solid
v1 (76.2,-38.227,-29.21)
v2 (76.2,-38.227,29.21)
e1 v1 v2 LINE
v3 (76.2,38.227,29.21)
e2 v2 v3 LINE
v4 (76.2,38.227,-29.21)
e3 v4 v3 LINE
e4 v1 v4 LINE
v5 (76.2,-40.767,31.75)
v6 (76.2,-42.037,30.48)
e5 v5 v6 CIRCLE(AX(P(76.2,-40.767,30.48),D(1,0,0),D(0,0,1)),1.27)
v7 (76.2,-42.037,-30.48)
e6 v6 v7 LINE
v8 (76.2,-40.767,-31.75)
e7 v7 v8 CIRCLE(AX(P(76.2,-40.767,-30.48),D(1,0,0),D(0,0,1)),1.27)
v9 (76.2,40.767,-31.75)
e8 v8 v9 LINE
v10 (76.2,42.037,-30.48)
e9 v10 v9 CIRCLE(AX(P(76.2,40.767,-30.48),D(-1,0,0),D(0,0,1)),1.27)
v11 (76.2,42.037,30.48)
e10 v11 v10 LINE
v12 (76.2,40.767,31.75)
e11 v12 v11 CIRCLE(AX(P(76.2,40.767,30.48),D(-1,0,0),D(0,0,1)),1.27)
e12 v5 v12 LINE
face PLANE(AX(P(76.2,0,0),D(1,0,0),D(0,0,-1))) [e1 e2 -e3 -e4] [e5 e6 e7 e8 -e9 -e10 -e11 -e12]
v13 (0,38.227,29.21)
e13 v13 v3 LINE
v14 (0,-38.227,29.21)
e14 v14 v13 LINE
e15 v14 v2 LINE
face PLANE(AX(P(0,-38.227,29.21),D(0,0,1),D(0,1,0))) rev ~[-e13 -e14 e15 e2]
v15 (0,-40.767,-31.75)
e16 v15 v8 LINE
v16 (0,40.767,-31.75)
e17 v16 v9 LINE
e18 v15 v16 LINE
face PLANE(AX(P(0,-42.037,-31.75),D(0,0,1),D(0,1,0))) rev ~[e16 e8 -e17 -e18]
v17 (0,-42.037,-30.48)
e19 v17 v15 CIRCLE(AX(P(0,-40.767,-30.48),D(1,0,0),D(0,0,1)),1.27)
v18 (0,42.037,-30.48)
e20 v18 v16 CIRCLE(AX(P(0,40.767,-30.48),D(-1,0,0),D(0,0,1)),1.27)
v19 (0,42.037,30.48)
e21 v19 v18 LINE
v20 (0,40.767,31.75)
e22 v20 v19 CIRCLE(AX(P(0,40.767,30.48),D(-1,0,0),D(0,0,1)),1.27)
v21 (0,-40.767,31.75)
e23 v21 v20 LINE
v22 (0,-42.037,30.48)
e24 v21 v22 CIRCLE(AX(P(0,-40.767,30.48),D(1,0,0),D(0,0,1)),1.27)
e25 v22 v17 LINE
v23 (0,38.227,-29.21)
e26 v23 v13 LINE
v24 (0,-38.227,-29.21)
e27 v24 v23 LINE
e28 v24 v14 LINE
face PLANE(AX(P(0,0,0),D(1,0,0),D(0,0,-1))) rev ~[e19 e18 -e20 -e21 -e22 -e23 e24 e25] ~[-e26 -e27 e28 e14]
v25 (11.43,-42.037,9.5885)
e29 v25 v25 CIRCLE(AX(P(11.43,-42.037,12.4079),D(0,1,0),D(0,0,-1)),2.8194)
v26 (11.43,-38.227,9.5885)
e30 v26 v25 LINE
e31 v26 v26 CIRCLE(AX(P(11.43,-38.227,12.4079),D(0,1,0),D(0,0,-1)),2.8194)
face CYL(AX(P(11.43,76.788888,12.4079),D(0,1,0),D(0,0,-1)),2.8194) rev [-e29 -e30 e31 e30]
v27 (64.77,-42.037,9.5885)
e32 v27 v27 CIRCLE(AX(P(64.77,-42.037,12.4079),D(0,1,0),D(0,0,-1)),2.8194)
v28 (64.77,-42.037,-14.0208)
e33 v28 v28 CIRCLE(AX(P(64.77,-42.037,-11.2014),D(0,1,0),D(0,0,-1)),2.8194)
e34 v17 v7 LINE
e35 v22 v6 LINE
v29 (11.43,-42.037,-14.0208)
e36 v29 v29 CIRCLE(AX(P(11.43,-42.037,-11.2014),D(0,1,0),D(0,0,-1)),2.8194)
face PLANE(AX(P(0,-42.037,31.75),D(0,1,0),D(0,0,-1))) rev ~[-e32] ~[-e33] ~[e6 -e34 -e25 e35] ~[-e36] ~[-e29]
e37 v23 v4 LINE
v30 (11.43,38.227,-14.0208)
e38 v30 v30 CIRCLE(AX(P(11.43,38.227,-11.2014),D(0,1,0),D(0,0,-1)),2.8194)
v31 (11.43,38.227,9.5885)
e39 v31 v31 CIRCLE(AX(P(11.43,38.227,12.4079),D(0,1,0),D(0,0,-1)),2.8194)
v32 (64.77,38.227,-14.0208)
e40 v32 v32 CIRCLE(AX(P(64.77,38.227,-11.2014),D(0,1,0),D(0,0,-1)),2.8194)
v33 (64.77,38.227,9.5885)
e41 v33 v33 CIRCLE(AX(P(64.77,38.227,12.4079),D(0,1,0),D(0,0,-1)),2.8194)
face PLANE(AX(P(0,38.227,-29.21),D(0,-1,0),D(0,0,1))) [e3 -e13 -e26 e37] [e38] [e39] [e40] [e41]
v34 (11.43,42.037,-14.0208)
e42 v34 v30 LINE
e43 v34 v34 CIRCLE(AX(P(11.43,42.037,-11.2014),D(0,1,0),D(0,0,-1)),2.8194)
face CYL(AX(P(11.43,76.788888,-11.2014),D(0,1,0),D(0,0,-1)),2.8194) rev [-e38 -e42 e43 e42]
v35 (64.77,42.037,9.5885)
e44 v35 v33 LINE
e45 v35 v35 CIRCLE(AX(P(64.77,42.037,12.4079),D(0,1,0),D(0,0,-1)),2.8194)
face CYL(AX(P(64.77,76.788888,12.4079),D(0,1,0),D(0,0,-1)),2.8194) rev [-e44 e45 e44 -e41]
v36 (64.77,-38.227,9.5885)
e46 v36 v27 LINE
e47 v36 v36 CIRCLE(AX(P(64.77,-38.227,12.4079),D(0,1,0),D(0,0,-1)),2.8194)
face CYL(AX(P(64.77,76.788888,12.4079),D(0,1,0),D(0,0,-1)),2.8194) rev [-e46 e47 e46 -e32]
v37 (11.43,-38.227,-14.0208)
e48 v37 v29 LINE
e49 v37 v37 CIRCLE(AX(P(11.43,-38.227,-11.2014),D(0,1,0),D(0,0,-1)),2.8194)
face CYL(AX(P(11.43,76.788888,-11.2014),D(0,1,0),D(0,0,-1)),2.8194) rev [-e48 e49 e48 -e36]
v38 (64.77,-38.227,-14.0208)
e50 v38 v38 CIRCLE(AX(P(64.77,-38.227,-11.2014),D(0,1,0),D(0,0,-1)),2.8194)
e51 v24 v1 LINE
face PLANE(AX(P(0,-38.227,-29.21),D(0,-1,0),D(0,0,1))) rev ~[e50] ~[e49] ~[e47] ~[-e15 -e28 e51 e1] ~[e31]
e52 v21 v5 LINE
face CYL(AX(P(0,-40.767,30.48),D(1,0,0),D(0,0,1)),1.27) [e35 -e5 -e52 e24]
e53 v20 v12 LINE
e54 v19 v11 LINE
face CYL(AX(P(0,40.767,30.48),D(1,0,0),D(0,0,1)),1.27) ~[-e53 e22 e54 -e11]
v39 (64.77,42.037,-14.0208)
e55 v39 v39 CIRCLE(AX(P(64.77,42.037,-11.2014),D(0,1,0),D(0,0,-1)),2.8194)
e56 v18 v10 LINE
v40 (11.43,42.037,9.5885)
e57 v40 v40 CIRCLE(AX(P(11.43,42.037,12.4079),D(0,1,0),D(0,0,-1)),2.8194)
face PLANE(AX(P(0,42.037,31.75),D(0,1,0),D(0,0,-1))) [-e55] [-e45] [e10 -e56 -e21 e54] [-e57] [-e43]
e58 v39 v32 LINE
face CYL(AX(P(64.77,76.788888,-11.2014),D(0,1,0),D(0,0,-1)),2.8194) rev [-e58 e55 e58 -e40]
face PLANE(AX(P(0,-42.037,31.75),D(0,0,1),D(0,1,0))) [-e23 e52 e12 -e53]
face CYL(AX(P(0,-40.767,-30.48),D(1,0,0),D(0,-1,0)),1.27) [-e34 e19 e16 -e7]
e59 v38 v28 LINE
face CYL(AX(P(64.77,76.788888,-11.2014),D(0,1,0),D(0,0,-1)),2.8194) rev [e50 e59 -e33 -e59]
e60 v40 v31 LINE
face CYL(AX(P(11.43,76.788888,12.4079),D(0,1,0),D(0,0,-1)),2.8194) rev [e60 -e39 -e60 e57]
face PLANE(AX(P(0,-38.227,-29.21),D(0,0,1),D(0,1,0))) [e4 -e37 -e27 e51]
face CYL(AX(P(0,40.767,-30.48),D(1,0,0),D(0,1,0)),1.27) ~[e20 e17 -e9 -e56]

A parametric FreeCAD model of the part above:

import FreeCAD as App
import Part
import Sketcher

V = App.Vector
Q = App.Units.Quantity


def edges_at(feature, points):
    """Names of the edges that pass closest to the given points."""
    edges = feature.Shape.Edges
    near = lambda p: min(range(len(edges)), key=lambda i: edges[i].distToShape(Part.Vertex(*p))[0])
    return sorted({f"Edge{near(p) + 1}" for p in points})


def add_polygon(sketch, points):
    """Adds a closed chain of lines whose ends are joined by coincident constraints."""
    first, n = sketch.GeometryCount, len(points)
    for a, b in zip(points, points[1:] + points[:1]):
        sketch.addGeometry(Part.LineSegment(App.Vector(*a, 0), App.Vector(*b, 0)), False)
    for i in range(n):
        sketch.addConstraint(Sketcher.Constraint("Coincident", first + i, 2, first + (i + 1) % n, 1))

doc = App.newDocument("Part")
params = doc.addObject("Spreadsheet::Sheet", "Params")
for row, (alias, value) in enumerate([
    ("sketch1_height", "2.5 in"),
    ("sketch1_width", "3.31 in"),
    ("pad1_length", "3 in"),
    ("sketch2_height", "2.3 in"),
    ("sketch2_width", "3.01 in"),
    ("fillet_radius", "0.05 in"),
    ("sketch3_diameter", "0.222 in"),
], start=1):
    params.set(f"A{row}", alias)
    params.set(f"B{row}", "=" + value)
    params.setAlias(f"B{row}", alias)

body = doc.addObject("PartDesign::Body", "Body")

# Sketch on YZ plane
sketch1 = body.newObject("Sketcher::SketchObject", "Sketch")
sketch1.AttachmentSupport = (doc.getObject("YZ_Plane"), [""])
sketch1.MapMode = "FlatFace"
add_polygon(sketch1, [(42, 32), (-42, 32), (-42, -32), (42, -32)])  # lines 0-3
sketch1.addConstraint([
    Sketcher.Constraint("Horizontal", 0),
    Sketcher.Constraint("Vertical", 1),
    Sketcher.Constraint("Horizontal", 2),
    Sketcher.Constraint("Vertical", 3),
    Sketcher.Constraint("Symmetric", 0, 2, 2, 2, -1, 1),
    Sketcher.Constraint("DistanceY", 1, 2, 1, 1, Q("2.5 in")),
    Sketcher.Constraint("DistanceX", 0, 2, 0, 1, Q("3.31 in")),
])
sketch1.setExpression("Constraints[9]", "Params.sketch1_height")
sketch1.setExpression("Constraints[10]", "Params.sketch1_width")
pad1 = body.newObject("PartDesign::Pad", "Pad")
pad1.Profile = sketch1
pad1.setExpression("Length", "Params.pad1_length")

# Sketch on YZ plane
sketch2 = body.newObject("Sketcher::SketchObject", "Sketch001")
sketch2.AttachmentSupport = (doc.getObject("YZ_Plane"), [""])
sketch2.MapMode = "FlatFace"
add_polygon(sketch2, [(38, -29), (-38, -29), (-38, 29), (38, 29)])  # lines 0-3
sketch2.addConstraint([
    Sketcher.Constraint("Horizontal", 0),
    Sketcher.Constraint("Vertical", 1),
    Sketcher.Constraint("Horizontal", 2),
    Sketcher.Constraint("Vertical", 3),
    Sketcher.Constraint("Symmetric", 0, 2, 2, 2, -1, 1),
    Sketcher.Constraint("DistanceY", 1, 1, 1, 2, Q("2.3 in")),
    Sketcher.Constraint("DistanceX", 0, 2, 0, 1, Q("3.01 in")),
])
sketch2.setExpression("Constraints[9]", "Params.sketch2_height")
sketch2.setExpression("Constraints[10]", "Params.sketch2_width")
pocket1 = body.newObject("PartDesign::Pocket", "Pocket")
pocket1.Profile = sketch2
pocket1.Type = "UpToFirst"
pocket1.Reversed = True
doc.recompute()

fillet = body.newObject("PartDesign::Fillet", "Fillet")
fillet.Base = (pocket1, edges_at(pocket1, [
    (38.1, -42.037, -31.75),
    (38.1, -42.037, 31.75),
    (38.1, 42.037, 31.75),
    (38.1, 42.037, -31.75),
]))
fillet.setExpression("Radius", "Params.fillet_radius")

# Sketch on XZ plane
sketch3 = body.newObject("Sketcher::SketchObject", "Sketch002")
sketch3.AttachmentSupport = (doc.getObject("XZ_Plane"), [""])
sketch3.MapMode = "FlatFace"
sketch3.AttachmentOffset = App.Placement(V(0, 0, 1.655 * 25.4), App.Rotation())
sketch3.addGeometry([
    Part.Circle(V(11.4, 12.4, 0), V(0, 0, 1), 2.8),
    Part.Circle(V(64.8, 12.4, 0), V(0, 0, 1), 2.8),
    Part.Circle(V(11.4, -11.2, 0), V(0, 0, 1), 2.8),
    Part.Circle(V(64.8, -11.2, 0), V(0, 0, 1), 2.8),
], False)
sketch3.addConstraint([
    Sketcher.Constraint("Equal", 0, 1),
    Sketcher.Constraint("Equal", 1, 2),
    Sketcher.Constraint("Equal", 2, 3),
    Sketcher.Constraint("Horizontal", 0, 3, 1, 3),
    Sketcher.Constraint("Horizontal", 2, 3, 3, 3),
    Sketcher.Constraint("Vertical", 0, 3, 2, 3),
    Sketcher.Constraint("Vertical", 1, 3, 3, 3),
    Sketcher.Constraint("Diameter", 0, Q("0.222 in")),
    Sketcher.Constraint("DistanceX", 0, 3, 1, 3, Q("2.1 in")),
    Sketcher.Constraint("DistanceX", -1, 1, 0, 3, Q("0.45 in")),
    Sketcher.Constraint("DistanceY", 2, 3, -1, 1, Q("0.441 in")),
    Sketcher.Constraint("DistanceY", -1, 1, 0, 3, Q("0.4885 in")),
])
sketch3.setExpression("Constraints[7]", "Params.sketch3_diameter")
pocket2 = body.newObject("PartDesign::Pocket", "Pocket001")
pocket2.Profile = sketch3
pocket2.Type = "ThroughAll"
pocket2.Midplane = True

doc.recompute()
